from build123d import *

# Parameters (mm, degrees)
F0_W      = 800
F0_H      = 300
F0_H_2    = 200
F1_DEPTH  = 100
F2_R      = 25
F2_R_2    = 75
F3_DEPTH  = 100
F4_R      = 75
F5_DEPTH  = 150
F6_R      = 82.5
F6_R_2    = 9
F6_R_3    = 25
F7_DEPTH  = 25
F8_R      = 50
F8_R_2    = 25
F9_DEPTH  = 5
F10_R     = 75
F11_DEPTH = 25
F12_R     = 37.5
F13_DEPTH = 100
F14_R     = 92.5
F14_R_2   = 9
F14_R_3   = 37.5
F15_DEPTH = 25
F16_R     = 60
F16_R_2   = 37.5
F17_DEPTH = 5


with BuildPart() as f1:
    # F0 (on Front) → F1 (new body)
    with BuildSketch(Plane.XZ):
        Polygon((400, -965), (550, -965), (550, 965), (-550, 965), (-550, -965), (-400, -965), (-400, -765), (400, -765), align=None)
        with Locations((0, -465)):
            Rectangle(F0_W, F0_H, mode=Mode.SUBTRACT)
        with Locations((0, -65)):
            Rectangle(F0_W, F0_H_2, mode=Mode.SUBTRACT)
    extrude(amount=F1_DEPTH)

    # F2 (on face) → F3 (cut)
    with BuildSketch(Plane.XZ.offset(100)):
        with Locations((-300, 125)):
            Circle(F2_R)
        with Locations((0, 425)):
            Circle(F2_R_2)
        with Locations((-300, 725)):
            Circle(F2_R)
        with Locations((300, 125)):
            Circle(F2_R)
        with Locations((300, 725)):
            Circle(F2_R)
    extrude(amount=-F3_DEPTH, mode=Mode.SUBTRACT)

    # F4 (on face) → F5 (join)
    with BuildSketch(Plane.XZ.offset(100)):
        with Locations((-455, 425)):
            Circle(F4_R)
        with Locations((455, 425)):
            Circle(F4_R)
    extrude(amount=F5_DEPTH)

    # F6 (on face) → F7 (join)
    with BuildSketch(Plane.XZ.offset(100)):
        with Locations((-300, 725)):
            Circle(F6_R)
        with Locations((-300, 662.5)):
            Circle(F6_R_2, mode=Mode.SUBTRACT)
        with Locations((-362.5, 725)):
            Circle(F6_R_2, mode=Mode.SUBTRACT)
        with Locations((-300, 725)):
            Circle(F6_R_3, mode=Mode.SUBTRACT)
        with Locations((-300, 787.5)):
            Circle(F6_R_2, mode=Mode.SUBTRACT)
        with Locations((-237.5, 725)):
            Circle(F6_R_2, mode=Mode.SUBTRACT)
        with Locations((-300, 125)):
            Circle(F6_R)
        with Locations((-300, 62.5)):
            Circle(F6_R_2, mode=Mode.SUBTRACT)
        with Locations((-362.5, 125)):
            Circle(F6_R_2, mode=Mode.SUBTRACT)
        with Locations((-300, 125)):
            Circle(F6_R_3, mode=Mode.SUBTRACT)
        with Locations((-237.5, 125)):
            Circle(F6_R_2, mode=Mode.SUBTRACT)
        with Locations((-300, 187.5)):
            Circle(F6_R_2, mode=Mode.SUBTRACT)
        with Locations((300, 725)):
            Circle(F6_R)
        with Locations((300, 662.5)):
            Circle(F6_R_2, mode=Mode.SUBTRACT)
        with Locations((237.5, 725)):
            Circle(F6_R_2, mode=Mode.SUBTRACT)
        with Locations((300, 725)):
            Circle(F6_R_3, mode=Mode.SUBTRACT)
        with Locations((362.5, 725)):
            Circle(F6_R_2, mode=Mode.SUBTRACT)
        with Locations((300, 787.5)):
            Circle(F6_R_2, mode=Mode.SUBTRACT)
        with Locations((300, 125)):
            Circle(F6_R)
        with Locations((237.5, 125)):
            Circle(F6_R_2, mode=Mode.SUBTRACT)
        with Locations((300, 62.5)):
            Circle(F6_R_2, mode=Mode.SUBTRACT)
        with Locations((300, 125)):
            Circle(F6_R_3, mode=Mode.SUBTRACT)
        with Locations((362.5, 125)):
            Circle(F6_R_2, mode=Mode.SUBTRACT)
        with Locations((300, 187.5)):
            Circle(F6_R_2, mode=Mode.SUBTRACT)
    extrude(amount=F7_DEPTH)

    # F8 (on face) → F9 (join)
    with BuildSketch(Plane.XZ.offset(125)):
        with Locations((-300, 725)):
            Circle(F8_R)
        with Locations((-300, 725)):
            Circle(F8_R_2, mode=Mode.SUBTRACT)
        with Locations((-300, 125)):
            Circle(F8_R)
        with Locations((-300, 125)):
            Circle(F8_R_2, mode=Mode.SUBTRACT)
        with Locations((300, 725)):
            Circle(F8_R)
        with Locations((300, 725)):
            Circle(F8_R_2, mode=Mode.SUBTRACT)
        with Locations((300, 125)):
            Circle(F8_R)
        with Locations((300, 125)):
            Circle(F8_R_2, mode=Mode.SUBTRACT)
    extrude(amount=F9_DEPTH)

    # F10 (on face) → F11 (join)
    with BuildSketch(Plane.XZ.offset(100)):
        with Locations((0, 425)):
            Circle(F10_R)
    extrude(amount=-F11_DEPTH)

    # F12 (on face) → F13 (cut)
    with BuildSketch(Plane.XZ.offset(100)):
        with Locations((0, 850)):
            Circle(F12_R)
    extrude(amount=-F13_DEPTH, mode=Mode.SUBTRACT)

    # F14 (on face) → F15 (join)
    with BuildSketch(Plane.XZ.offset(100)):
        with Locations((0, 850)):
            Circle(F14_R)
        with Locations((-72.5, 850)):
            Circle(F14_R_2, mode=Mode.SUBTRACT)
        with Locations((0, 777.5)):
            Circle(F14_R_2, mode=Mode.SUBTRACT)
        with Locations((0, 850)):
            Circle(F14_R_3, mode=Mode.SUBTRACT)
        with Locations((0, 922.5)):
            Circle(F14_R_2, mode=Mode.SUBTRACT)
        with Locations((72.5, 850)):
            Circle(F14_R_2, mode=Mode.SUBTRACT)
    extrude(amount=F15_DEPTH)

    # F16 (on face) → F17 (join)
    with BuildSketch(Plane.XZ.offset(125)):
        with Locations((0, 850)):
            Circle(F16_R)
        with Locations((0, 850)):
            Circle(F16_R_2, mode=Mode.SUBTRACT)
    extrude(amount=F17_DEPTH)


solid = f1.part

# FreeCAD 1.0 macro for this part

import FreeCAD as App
import Part
import Sketcher

V = App.Vector


def add_polygon(sketch, points):
    """Adds a closed chain of lines whose ends are joined by coincident constraints."""
    first, n = sketch.GeometryCount, len(points)
    for a, b in zip(points, points[1:] + points[:1]):
        sketch.addGeometry(Part.LineSegment(App.Vector(*a, 0), App.Vector(*b, 0)), False)
    for i in range(n):
        sketch.addConstraint(Sketcher.Constraint("Coincident", first + i, 2, first + (i + 1) % n, 1))

doc = App.newDocument("Part")
body = doc.addObject("PartDesign::Body", "Body")

# Sketch on XZ plane
sketch1 = doc.addObject("Sketcher::SketchObject", "Sketch")
body.addObject(sketch1)
sketch1.AttachmentSupport = (doc.XZ_Plane, [""])
sketch1.MapMode = "FlatFace"
add_polygon(sketch1, [(400, -965), (550, -965), (550, 965), (-550, 965), (-550, -965), (-400, -965), (-400, -765), (400, -765)])  # lines 0-7
add_polygon(sketch1, [(400, -615), (-400, -615), (-400, -315), (400, -315)])  # lines 8-11
add_polygon(sketch1, [(400, -165), (-400, -165), (-400, 35), (400, 35)])  # lines 12-15
sketch1.addConstraint(Sketcher.Constraint("Horizontal", 0))
sketch1.addConstraint(Sketcher.Constraint("Vertical", 1))
sketch1.addConstraint(Sketcher.Constraint("Horizontal", 2))
sketch1.addConstraint(Sketcher.Constraint("Vertical", 3))
sketch1.addConstraint(Sketcher.Constraint("Horizontal", 4))
sketch1.addConstraint(Sketcher.Constraint("Vertical", 5))
sketch1.addConstraint(Sketcher.Constraint("Horizontal", 6))
sketch1.addConstraint(Sketcher.Constraint("Vertical", 7))
sketch1.addConstraint(Sketcher.Constraint("Horizontal", 8))
sketch1.addConstraint(Sketcher.Constraint("Vertical", 9))
sketch1.addConstraint(Sketcher.Constraint("Horizontal", 10))
sketch1.addConstraint(Sketcher.Constraint("Vertical", 11))
sketch1.addConstraint(Sketcher.Constraint("Horizontal", 12))
sketch1.addConstraint(Sketcher.Constraint("Vertical", 13))
sketch1.addConstraint(Sketcher.Constraint("Horizontal", 14))
sketch1.addConstraint(Sketcher.Constraint("Vertical", 15))
sketch1.addConstraint(Sketcher.Constraint("Symmetric", 0, 2, 2, 2, -1, 1))
sketch1.addConstraint(Sketcher.Constraint("Symmetric", 4, 2, 7, 2, -2))
sketch1.addConstraint(Sketcher.Constraint("Vertical", 5, 2, 8, 2))
sketch1.addConstraint(Sketcher.Constraint("Vertical", 7, 2, 10, 2))
sketch1.addConstraint(Sketcher.Constraint("Vertical", 9, 2, 12, 2))
sketch1.addConstraint(Sketcher.Constraint("Vertical", 11, 2, 14, 2))
sketch1.addConstraint(Sketcher.Constraint("Equal", 7, 13))
sketch1.addConstraint(Sketcher.Constraint("DistanceX", 0, 1, 0, 2, 150.0))
sketch1.addConstraint(Sketcher.Constraint("DistanceX", 2, 2, 2, 1, 1100.0))
sketch1.addConstraint(Sketcher.Constraint("DistanceY", 1, 1, 1, 2, 1930.0))
sketch1.addConstraint(Sketcher.Constraint("DistanceY", 5, 1, 5, 2, 200.0))
sketch1.addConstraint(Sketcher.Constraint("DistanceY", 9, 1, 9, 2, 300.0))
sketch1.addConstraint(Sketcher.Constraint("DistanceY", 8, 2, -1, 1, 615.0))
sketch1.addConstraint(Sketcher.Constraint("DistanceY", 12, 2, -1, 1, 165.0))
pad1 = doc.addObject("PartDesign::Pad", "Pad")
body.addObject(pad1)
pad1.Profile = sketch1
pad1.Length = 100

# Sketch on XZ plane
sketch2 = doc.addObject("Sketcher::SketchObject", "Sketch001")
body.addObject(sketch2)
sketch2.AttachmentSupport = (doc.XZ_Plane, [""])
sketch2.MapMode = "FlatFace"
sketch2.AttachmentOffset = App.Placement(V(0, 0, 100), App.Rotation())
sketch2.addGeometry(Part.Circle(V(-300, 125, 0), V(0, 0, 1), 25), False)
sketch2.addGeometry(Part.Circle(V(0, 425, 0), V(0, 0, 1), 75), False)
sketch2.addGeometry(Part.Circle(V(-300, 725, 0), V(0, 0, 1), 25), False)
sketch2.addGeometry(Part.Circle(V(300, 125, 0), V(0, 0, 1), 25), False)
sketch2.addGeometry(Part.Circle(V(300, 725, 0), V(0, 0, 1), 25), False)
sketch2.addConstraint(Sketcher.Constraint("Equal", 0, 2))
sketch2.addConstraint(Sketcher.Constraint("Equal", 2, 3))
sketch2.addConstraint(Sketcher.Constraint("Equal", 3, 4))
sketch2.addConstraint(Sketcher.Constraint("Symmetric", 0, 3, 3, 3, -2))
sketch2.addConstraint(Sketcher.Constraint("Symmetric", 2, 3, 4, 3, -2))
sketch2.addConstraint(Sketcher.Constraint("PointOnObject", 1, 3, -2))
sketch2.addConstraint(Sketcher.Constraint("Vertical", 0, 3, 2, 3))
sketch2.addConstraint(Sketcher.Constraint("Diameter", 0, 50.0))
sketch2.addConstraint(Sketcher.Constraint("Diameter", 1, 150.0))
sketch2.addConstraint(Sketcher.Constraint("DistanceX", 0, 3, -1, 1, 300.0))
sketch2.addConstraint(Sketcher.Constraint("DistanceY", -1, 1, 0, 3, 125.0))
sketch2.addConstraint(Sketcher.Constraint("DistanceY", -1, 1, 1, 3, 425.0))
sketch2.addConstraint(Sketcher.Constraint("DistanceY", -1, 1, 2, 3, 725.0))
pocket1 = doc.addObject("PartDesign::Pocket", "Pocket")
body.addObject(pocket1)
pocket1.Profile = sketch2
pocket1.Length = 100

# Sketch on XZ plane
sketch3 = doc.addObject("Sketcher::SketchObject", "Sketch002")
body.addObject(sketch3)
sketch3.AttachmentSupport = (doc.XZ_Plane, [""])
sketch3.MapMode = "FlatFace"
sketch3.AttachmentOffset = App.Placement(V(0, 0, 100), App.Rotation())
sketch3.addGeometry(Part.Circle(V(-455, 425, 0), V(0, 0, 1), 75), False)
sketch3.addGeometry(Part.Circle(V(455, 425, 0), V(0, 0, 1), 75), False)
sketch3.addConstraint(Sketcher.Constraint("Equal", 0, 1))
sketch3.addConstraint(Sketcher.Constraint("Symmetric", 0, 3, 1, 3, -2))
sketch3.addConstraint(Sketcher.Constraint("Diameter", 0, 150.0))
sketch3.addConstraint(Sketcher.Constraint("DistanceX", 0, 3, -1, 1, 455.0))
sketch3.addConstraint(Sketcher.Constraint("DistanceY", -1, 1, 0, 3, 425.0))
pad2 = doc.addObject("PartDesign::Pad", "Pad001")
body.addObject(pad2)
pad2.Profile = sketch3
pad2.Length = 150

# Sketch on XZ plane
sketch4 = doc.addObject("Sketcher::SketchObject", "Sketch003")
body.addObject(sketch4)
sketch4.AttachmentSupport = (doc.XZ_Plane, [""])
sketch4.MapMode = "FlatFace"
sketch4.AttachmentOffset = App.Placement(V(0, 0, 100), App.Rotation())
sketch4.addGeometry(Part.Circle(V(-300, 725, 0), V(0, 0, 1), 82), False)
sketch4.addGeometry(Part.Circle(V(-300, 662, 0), V(0, 0, 1), 9), False)
sketch4.addGeometry(Part.Circle(V(-362, 725, 0), V(0, 0, 1), 9), False)
sketch4.addGeometry(Part.Circle(V(-300, 725, 0), V(0, 0, 1), 25), False)
sketch4.addGeometry(Part.Circle(V(-238, 725, 0), V(0, 0, 1), 9), False)
sketch4.addGeometry(Part.Circle(V(-300, 788, 0), V(0, 0, 1), 9), False)
sketch4.addGeometry(Part.Circle(V(-300, 125, 0), V(0, 0, 1), 82), False)
sketch4.addGeometry(Part.Circle(V(-300, 62, 0), V(0, 0, 1), 9), False)
sketch4.addGeometry(Part.Circle(V(-362, 125, 0), V(0, 0, 1), 9), False)
sketch4.addGeometry(Part.Circle(V(-300, 125, 0), V(0, 0, 1), 25), False)
sketch4.addGeometry(Part.Circle(V(-238, 125, 0), V(0, 0, 1), 9), False)
sketch4.addGeometry(Part.Circle(V(-300, 188, 0), V(0, 0, 1), 9), False)
sketch4.addGeometry(Part.Circle(V(300, 725, 0), V(0, 0, 1), 82), False)
sketch4.addGeometry(Part.Circle(V(300, 662, 0), V(0, 0, 1), 9), False)
sketch4.addGeometry(Part.Circle(V(238, 725, 0), V(0, 0, 1), 9), False)
sketch4.addGeometry(Part.Circle(V(300, 725, 0), V(0, 0, 1), 25), False)
sketch4.addGeometry(Part.Circle(V(362, 725, 0), V(0, 0, 1), 9), False)
sketch4.addGeometry(Part.Circle(V(300, 788, 0), V(0, 0, 1), 9), False)
sketch4.addGeometry(Part.Circle(V(300, 125, 0), V(0, 0, 1), 82), False)
sketch4.addGeometry(Part.Circle(V(300, 62, 0), V(0, 0, 1), 9), False)
sketch4.addGeometry(Part.Circle(V(238, 125, 0), V(0, 0, 1), 9), False)
sketch4.addGeometry(Part.Circle(V(300, 125, 0), V(0, 0, 1), 25), False)
sketch4.addGeometry(Part.Circle(V(362, 125, 0), V(0, 0, 1), 9), False)
sketch4.addGeometry(Part.Circle(V(300, 188, 0), V(0, 0, 1), 9), False)
sketch4.addConstraint(Sketcher.Constraint("Coincident", 3, 3, 0, 3))
sketch4.addConstraint(Sketcher.Constraint("Coincident", 9, 3, 6, 3))
sketch4.addConstraint(Sketcher.Constraint("Coincident", 15, 3, 12, 3))
sketch4.addConstraint(Sketcher.Constraint("Coincident", 21, 3, 18, 3))
sketch4.addConstraint(Sketcher.Constraint("Equal", 1, 2))
sketch4.addConstraint(Sketcher.Constraint("Equal", 2, 4))
sketch4.addConstraint(Sketcher.Constraint("Equal", 4, 5))
sketch4.addConstraint(Sketcher.Constraint("Equal", 0, 6))
sketch4.addConstraint(Sketcher.Constraint("Equal", 5, 7))
sketch4.addConstraint(Sketcher.Constraint("Equal", 7, 8))
sketch4.addConstraint(Sketcher.Constraint("Equal", 3, 9))
sketch4.addConstraint(Sketcher.Constraint("Equal", 8, 10))
sketch4.addConstraint(Sketcher.Constraint("Equal", 10, 11))
sketch4.addConstraint(Sketcher.Constraint("Equal", 6, 12))
sketch4.addConstraint(Sketcher.Constraint("Equal", 11, 13))
sketch4.addConstraint(Sketcher.Constraint("Equal", 13, 14))
sketch4.addConstraint(Sketcher.Constraint("Equal", 9, 15))
sketch4.addConstraint(Sketcher.Constraint("Equal", 14, 16))
sketch4.addConstraint(Sketcher.Constraint("Equal", 16, 17))
sketch4.addConstraint(Sketcher.Constraint("Equal", 12, 18))
sketch4.addConstraint(Sketcher.Constraint("Equal", 17, 19))
sketch4.addConstraint(Sketcher.Constraint("Equal", 19, 20))
sketch4.addConstraint(Sketcher.Constraint("Equal", 15, 21))
sketch4.addConstraint(Sketcher.Constraint("Equal", 20, 22))
sketch4.addConstraint(Sketcher.Constraint("Equal", 22, 23))
sketch4.addConstraint(Sketcher.Constraint("Symmetric", 0, 3, 12, 3, -2))
sketch4.addConstraint(Sketcher.Constraint("Symmetric", 1, 3, 13, 3, -2))
sketch4.addConstraint(Sketcher.Constraint("Symmetric", 4, 3, 14, 3, -2))
sketch4.addConstraint(Sketcher.Constraint("Symmetric", 2, 3, 16, 3, -2))
sketch4.addConstraint(Sketcher.Constraint("Symmetric", 5, 3, 17, 3, -2))
sketch4.addConstraint(Sketcher.Constraint("Symmetric", 6, 3, 18, 3, -2))
sketch4.addConstraint(Sketcher.Constraint("Symmetric", 7, 3, 19, 3, -2))
sketch4.addConstraint(Sketcher.Constraint("Symmetric", 10, 3, 20, 3, -2))
sketch4.addConstraint(Sketcher.Constraint("Symmetric", 8, 3, 22, 3, -2))
sketch4.addConstraint(Sketcher.Constraint("Symmetric", 11, 3, 23, 3, -2))
sketch4.addConstraint(Sketcher.Constraint("Horizontal", 0, 3, 2, 3))
sketch4.addConstraint(Sketcher.Constraint("Horizontal", 3, 3, 4, 3))
sketch4.addConstraint(Sketcher.Constraint("Horizontal", 6, 3, 8, 3))
sketch4.addConstraint(Sketcher.Constraint("Horizontal", 9, 3, 10, 3))
sketch4.addConstraint(Sketcher.Constraint("Vertical", 0, 3, 1, 3))
sketch4.addConstraint(Sketcher.Constraint("Vertical", 3, 3, 5, 3))
sketch4.addConstraint(Sketcher.Constraint("Vertical", 5, 3, 6, 3))
sketch4.addConstraint(Sketcher.Constraint("Vertical", 6, 3, 7, 3))
sketch4.addConstraint(Sketcher.Constraint("Vertical", 2, 3, 8, 3))
sketch4.addConstraint(Sketcher.Constraint("Vertical", 4, 3, 10, 3))
sketch4.addConstraint(Sketcher.Constraint("Vertical", 9, 3, 11, 3))
sketch4.addConstraint(Sketcher.Constraint("Diameter", 0, 165.0))
sketch4.addConstraint(Sketcher.Constraint("Diameter", 1, 18.0))
sketch4.addConstraint(Sketcher.Constraint("Diameter", 3, 50.0))
sketch4.addConstraint(Sketcher.Constraint("DistanceX", 0, 3, -1, 1, 300.0))
sketch4.addConstraint(Sketcher.Constraint("DistanceY", -1, 1, 0, 3, 725.0))
sketch4.addConstraint(Sketcher.Constraint("DistanceY", -1, 1, 6, 3, 125.0))
sketch4.addConstraint(Sketcher.Constraint("DistanceX", 2, 3, 4, 3, 125.0))
sketch4.addConstraint(Sketcher.Constraint("DistanceY", 1, 3, 5, 3, 125.0))
sketch4.addConstraint(Sketcher.Constraint("DistanceY", 7, 3, 1, 3, 600.0))
sketch4.addConstraint(Sketcher.Constraint("DistanceY", 7, 3, 11, 3, 125.0))
sketch4.addConstraint(Sketcher.Constraint("DistanceX", 4, 3, 14, 3, 475.0))
sketch4.addConstraint(Sketcher.Constraint("DistanceY", -1, 1, 1, 3, 662.5))
pad3 = doc.addObject("PartDesign::Pad", "Pad002")
body.addObject(pad3)
pad3.Profile = sketch4
pad3.Length = 25

# Sketch on XZ plane
sketch5 = doc.addObject("Sketcher::SketchObject", "Sketch004")
body.addObject(sketch5)
sketch5.AttachmentSupport = (doc.XZ_Plane, [""])
sketch5.MapMode = "FlatFace"
sketch5.AttachmentOffset = App.Placement(V(0, 0, 125), App.Rotation())
sketch5.addGeometry(Part.Circle(V(-300, 725, 0), V(0, 0, 1), 50), False)
sketch5.addGeometry(Part.Circle(V(-300, 725, 0), V(0, 0, 1), 25), False)
sketch5.addGeometry(Part.Circle(V(-300, 125, 0), V(0, 0, 1), 50), False)
sketch5.addGeometry(Part.Circle(V(-300, 125, 0), V(0, 0, 1), 25), False)
sketch5.addGeometry(Part.Circle(V(300, 725, 0), V(0, 0, 1), 50), False)
sketch5.addGeometry(Part.Circle(V(300, 725, 0), V(0, 0, 1), 25), False)
sketch5.addGeometry(Part.Circle(V(300, 125, 0), V(0, 0, 1), 50), False)
sketch5.addGeometry(Part.Circle(V(300, 125, 0), V(0, 0, 1), 25), False)
sketch5.addConstraint(Sketcher.Constraint("Coincident", 1, 3, 0, 3))
sketch5.addConstraint(Sketcher.Constraint("Coincident", 3, 3, 2, 3))
sketch5.addConstraint(Sketcher.Constraint("Coincident", 5, 3, 4, 3))
sketch5.addConstraint(Sketcher.Constraint("Coincident", 7, 3, 6, 3))
sketch5.addConstraint(Sketcher.Constraint("Equal", 0, 2))
sketch5.addConstraint(Sketcher.Constraint("Equal", 1, 3))
sketch5.addConstraint(Sketcher.Constraint("Equal", 2, 4))
sketch5.addConstraint(Sketcher.Constraint("Equal", 3, 5))
sketch5.addConstraint(Sketcher.Constraint("Equal", 4, 6))
sketch5.addConstraint(Sketcher.Constraint("Equal", 5, 7))
sketch5.addConstraint(Sketcher.Constraint("Symmetric", 0, 3, 4, 3, -2))
sketch5.addConstraint(Sketcher.Constraint("Symmetric", 2, 3, 6, 3, -2))
sketch5.addConstraint(Sketcher.Constraint("Vertical", 1, 3, 2, 3))
sketch5.addConstraint(Sketcher.Constraint("Diameter", 0, 100.0))
sketch5.addConstraint(Sketcher.Constraint("Diameter", 1, 50.0))
sketch5.addConstraint(Sketcher.Constraint("DistanceX", 0, 3, -1, 1, 300.0))
sketch5.addConstraint(Sketcher.Constraint("DistanceY", -1, 1, 0, 3, 725.0))
sketch5.addConstraint(Sketcher.Constraint("DistanceY", -1, 1, 2, 3, 125.0))
pad4 = doc.addObject("PartDesign::Pad", "Pad003")
body.addObject(pad4)
pad4.Profile = sketch5
pad4.Length = 5

# Sketch on XZ plane
sketch6 = doc.addObject("Sketcher::SketchObject", "Sketch005")
body.addObject(sketch6)
sketch6.AttachmentSupport = (doc.XZ_Plane, [""])
sketch6.MapMode = "FlatFace"
sketch6.AttachmentOffset = App.Placement(V(0, 0, 100), App.Rotation())
sketch6.addGeometry(Part.Circle(V(0, 425, 0), V(0, 0, 1), 75), False)
sketch6.addConstraint(Sketcher.Constraint("PointOnObject", 0, 3, -2))
sketch6.addConstraint(Sketcher.Constraint("Diameter", 0, 150.0))
sketch6.addConstraint(Sketcher.Constraint("DistanceY", -1, 1, 0, 3, 425.0))
pad5 = doc.addObject("PartDesign::Pad", "Pad004")
body.addObject(pad5)
pad5.Profile = sketch6
pad5.Length = 25
pad5.Reversed = True

# Sketch on XZ plane
sketch7 = doc.addObject("Sketcher::SketchObject", "Sketch006")
body.addObject(sketch7)
sketch7.AttachmentSupport = (doc.XZ_Plane, [""])
sketch7.MapMode = "FlatFace"
sketch7.AttachmentOffset = App.Placement(V(0, 0, 100), App.Rotation())
sketch7.addGeometry(Part.Circle(V(0, 850, 0), V(0, 0, 1), 38), False)
sketch7.addConstraint(Sketcher.Constraint("PointOnObject", 0, 3, -2))
sketch7.addConstraint(Sketcher.Constraint("Diameter", 0, 75.0))
sketch7.addConstraint(Sketcher.Constraint("DistanceY", -1, 1, 0, 3, 850.0))
pocket2 = doc.addObject("PartDesign::Pocket", "Pocket001")
body.addObject(pocket2)
pocket2.Profile = sketch7
pocket2.Length = 100

# Sketch on XZ plane
sketch8 = doc.addObject("Sketcher::SketchObject", "Sketch007")
body.addObject(sketch8)
sketch8.AttachmentSupport = (doc.XZ_Plane, [""])
sketch8.MapMode = "FlatFace"
sketch8.AttachmentOffset = App.Placement(V(0, 0, 100), App.Rotation())
sketch8.addGeometry(Part.Circle(V(0, 850, 0), V(0, 0, 1), 92), False)
sketch8.addGeometry(Part.Circle(V(0, 778, 0), V(0, 0, 1), 9), False)
sketch8.addGeometry(Part.Circle(V(-72, 850, 0), V(0, 0, 1), 9), False)
sketch8.addGeometry(Part.Circle(V(0, 850, 0), V(0, 0, 1), 38), False)
sketch8.addGeometry(Part.Circle(V(72, 850, 0), V(0, 0, 1), 9), False)
sketch8.addGeometry(Part.Circle(V(0, 922, 0), V(0, 0, 1), 9), False)
sketch8.addConstraint(Sketcher.Constraint("Coincident", 3, 3, 0, 3))
sketch8.addConstraint(Sketcher.Constraint("Equal", 1, 2))
sketch8.addConstraint(Sketcher.Constraint("Equal", 2, 4))
sketch8.addConstraint(Sketcher.Constraint("Equal", 4, 5))
sketch8.addConstraint(Sketcher.Constraint("Symmetric", 2, 3, 4, 3, -2))
sketch8.addConstraint(Sketcher.Constraint("PointOnObject", 0, 3, -2))
sketch8.addConstraint(Sketcher.Constraint("PointOnObject", 1, 3, -2))
sketch8.addConstraint(Sketcher.Constraint("PointOnObject", 5, 3, -2))
sketch8.addConstraint(Sketcher.Constraint("Horizontal", 0, 3, 2, 3))
sketch8.addConstraint(Sketcher.Constraint("Diameter", 0, 185.0))
sketch8.addConstraint(Sketcher.Constraint("Diameter", 1, 18.0))
sketch8.addConstraint(Sketcher.Constraint("Diameter", 3, 75.0))
sketch8.addConstraint(Sketcher.Constraint("DistanceY", -1, 1, 0, 3, 850.0))
sketch8.addConstraint(Sketcher.Constraint("DistanceX", 2, 3, 4, 3, 145.0))
sketch8.addConstraint(Sketcher.Constraint("DistanceY", 1, 3, 5, 3, 145.0))
sketch8.addConstraint(Sketcher.Constraint("DistanceY", -1, 1, 1, 3, 777.5))
pad6 = doc.addObject("PartDesign::Pad", "Pad005")
body.addObject(pad6)
pad6.Profile = sketch8
pad6.Length = 25

# Sketch on XZ plane
sketch9 = doc.addObject("Sketcher::SketchObject", "Sketch008")
body.addObject(sketch9)
sketch9.AttachmentSupport = (doc.XZ_Plane, [""])
sketch9.MapMode = "FlatFace"
sketch9.AttachmentOffset = App.Placement(V(0, 0, 125), App.Rotation())
sketch9.addGeometry(Part.Circle(V(0, 850, 0), V(0, 0, 1), 60), False)
sketch9.addGeometry(Part.Circle(V(0, 850, 0), V(0, 0, 1), 38), False)
sketch9.addConstraint(Sketcher.Constraint("Coincident", 1, 3, 0, 3))
sketch9.addConstraint(Sketcher.Constraint("PointOnObject", 0, 3, -2))
sketch9.addConstraint(Sketcher.Constraint("Diameter", 0, 120.0))
sketch9.addConstraint(Sketcher.Constraint("Diameter", 1, 75.0))
sketch9.addConstraint(Sketcher.Constraint("DistanceY", -1, 1, 0, 3, 850.0))
pad7 = doc.addObject("PartDesign::Pad", "Pad006")
body.addObject(pad7)
pad7.Profile = sketch9
pad7.Length = 5

doc.recompute()
